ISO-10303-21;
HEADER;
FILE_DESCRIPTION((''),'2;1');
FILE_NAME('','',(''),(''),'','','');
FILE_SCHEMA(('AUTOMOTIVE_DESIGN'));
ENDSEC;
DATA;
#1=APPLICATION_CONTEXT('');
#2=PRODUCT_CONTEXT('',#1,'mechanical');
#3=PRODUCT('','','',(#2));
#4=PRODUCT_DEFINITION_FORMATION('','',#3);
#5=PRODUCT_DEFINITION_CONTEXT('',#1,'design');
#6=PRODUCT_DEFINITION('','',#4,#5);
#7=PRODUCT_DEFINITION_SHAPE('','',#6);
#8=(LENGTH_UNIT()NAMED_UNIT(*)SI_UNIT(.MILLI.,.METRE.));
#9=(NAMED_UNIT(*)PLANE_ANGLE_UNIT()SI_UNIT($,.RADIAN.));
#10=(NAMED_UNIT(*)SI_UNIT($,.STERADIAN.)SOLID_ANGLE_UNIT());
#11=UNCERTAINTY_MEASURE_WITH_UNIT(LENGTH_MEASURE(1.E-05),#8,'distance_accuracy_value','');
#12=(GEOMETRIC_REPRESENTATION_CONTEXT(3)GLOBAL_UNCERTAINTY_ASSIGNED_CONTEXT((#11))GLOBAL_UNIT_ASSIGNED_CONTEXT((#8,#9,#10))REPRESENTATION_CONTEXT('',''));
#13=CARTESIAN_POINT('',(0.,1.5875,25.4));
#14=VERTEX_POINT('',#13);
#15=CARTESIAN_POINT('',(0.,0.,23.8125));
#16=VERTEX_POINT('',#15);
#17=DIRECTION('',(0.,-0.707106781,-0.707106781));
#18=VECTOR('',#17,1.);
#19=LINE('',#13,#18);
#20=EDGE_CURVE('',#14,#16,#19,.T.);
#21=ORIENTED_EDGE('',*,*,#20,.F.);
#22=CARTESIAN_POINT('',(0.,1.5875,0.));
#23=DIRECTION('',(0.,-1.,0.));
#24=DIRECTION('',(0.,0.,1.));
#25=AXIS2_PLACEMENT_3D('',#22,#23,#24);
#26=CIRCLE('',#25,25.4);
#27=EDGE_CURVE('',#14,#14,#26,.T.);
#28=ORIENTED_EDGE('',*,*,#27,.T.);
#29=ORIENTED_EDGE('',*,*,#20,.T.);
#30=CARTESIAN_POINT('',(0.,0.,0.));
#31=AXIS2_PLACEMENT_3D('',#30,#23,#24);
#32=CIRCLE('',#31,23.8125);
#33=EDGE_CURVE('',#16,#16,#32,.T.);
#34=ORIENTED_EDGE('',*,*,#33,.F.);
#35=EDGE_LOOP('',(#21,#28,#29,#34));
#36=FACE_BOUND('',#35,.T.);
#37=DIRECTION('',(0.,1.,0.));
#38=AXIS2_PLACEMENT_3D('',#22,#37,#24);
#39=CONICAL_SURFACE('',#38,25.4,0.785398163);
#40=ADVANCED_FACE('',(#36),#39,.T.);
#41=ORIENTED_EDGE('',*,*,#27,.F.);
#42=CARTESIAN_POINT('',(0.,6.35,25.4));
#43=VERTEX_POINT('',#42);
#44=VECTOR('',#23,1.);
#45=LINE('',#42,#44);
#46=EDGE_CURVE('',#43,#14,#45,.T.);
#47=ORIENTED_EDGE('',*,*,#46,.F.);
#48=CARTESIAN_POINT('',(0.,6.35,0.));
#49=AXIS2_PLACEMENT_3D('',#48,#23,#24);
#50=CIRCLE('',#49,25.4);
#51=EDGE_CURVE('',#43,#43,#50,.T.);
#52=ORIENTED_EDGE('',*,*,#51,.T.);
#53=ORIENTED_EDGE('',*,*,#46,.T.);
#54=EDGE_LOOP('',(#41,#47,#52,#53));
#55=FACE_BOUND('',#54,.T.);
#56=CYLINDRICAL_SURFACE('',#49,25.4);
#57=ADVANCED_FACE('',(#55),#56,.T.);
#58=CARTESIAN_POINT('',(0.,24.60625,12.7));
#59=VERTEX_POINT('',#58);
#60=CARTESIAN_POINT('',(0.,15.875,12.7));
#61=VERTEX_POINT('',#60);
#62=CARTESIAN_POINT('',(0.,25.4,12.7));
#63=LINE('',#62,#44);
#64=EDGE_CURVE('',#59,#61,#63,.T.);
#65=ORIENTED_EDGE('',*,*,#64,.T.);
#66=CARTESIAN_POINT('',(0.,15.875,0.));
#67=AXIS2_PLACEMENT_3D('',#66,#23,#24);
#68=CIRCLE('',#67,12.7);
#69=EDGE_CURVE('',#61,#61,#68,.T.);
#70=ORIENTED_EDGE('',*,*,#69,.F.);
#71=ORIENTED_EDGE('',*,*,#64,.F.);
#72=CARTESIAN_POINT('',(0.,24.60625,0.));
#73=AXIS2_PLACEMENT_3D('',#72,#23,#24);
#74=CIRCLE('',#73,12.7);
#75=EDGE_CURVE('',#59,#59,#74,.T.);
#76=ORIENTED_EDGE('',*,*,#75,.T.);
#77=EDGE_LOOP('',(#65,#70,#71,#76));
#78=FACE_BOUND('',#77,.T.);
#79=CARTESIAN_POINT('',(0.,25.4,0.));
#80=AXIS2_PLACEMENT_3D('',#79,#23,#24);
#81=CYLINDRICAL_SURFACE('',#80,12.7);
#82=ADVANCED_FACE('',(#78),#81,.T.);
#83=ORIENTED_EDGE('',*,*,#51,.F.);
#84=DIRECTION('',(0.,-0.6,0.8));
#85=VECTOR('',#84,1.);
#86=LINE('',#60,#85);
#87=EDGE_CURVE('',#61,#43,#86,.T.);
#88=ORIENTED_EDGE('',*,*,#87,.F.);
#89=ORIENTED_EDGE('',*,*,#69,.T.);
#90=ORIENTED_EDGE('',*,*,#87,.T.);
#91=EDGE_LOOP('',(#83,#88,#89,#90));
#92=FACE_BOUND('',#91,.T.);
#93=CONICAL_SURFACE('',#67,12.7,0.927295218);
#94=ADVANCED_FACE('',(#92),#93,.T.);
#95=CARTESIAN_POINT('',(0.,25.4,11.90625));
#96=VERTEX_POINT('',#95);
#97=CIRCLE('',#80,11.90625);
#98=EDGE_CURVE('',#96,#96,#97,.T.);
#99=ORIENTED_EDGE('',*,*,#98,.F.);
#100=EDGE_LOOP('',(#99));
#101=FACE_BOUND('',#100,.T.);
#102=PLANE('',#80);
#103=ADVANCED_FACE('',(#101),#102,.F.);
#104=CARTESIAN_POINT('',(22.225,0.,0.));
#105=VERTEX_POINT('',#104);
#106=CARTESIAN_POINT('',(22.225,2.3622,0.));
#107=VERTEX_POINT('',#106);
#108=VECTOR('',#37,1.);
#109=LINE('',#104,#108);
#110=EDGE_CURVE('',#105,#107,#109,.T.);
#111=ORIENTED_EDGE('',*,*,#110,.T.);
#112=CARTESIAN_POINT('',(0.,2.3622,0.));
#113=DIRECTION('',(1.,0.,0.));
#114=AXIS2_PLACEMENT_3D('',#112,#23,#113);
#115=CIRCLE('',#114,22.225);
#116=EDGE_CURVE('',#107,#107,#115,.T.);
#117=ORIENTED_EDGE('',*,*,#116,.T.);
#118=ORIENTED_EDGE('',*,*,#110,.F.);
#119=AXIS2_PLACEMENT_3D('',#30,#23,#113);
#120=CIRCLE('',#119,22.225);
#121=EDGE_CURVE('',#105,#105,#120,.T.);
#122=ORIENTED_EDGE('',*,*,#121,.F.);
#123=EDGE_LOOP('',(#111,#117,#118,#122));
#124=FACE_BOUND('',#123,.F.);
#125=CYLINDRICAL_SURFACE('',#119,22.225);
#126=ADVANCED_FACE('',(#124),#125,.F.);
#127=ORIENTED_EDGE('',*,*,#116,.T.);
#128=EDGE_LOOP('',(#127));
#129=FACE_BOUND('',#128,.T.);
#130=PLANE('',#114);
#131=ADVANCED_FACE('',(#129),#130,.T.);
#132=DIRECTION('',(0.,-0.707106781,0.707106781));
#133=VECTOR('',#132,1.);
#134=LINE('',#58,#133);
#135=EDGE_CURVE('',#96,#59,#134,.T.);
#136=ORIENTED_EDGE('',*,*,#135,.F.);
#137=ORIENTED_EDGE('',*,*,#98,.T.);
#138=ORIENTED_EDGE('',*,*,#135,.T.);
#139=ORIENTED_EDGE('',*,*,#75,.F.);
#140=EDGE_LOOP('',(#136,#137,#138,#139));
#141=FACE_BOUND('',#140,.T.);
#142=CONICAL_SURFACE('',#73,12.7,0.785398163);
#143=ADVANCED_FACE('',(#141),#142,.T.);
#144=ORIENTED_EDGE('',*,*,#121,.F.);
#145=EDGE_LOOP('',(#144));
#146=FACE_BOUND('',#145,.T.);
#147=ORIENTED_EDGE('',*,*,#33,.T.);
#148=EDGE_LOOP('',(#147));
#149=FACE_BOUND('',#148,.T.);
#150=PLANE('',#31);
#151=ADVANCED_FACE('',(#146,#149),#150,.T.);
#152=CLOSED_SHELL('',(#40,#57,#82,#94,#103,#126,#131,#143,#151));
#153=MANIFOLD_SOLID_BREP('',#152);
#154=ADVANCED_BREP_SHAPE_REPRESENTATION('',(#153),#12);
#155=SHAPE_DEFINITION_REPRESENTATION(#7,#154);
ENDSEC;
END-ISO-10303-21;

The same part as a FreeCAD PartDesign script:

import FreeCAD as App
import Part
import Sketcher
Q = App.Units.Quantity


def edges_at(feature, points):
    """Names of the edges that pass closest to the given points."""
    edges = feature.Shape.Edges
    near = lambda p: min(range(len(edges)), key=lambda i: edges[i].distToShape(Part.Vertex(*p))[0])
    return sorted({f"Edge{near(p) + 1}" for p in points})


def add_polygon(sketch, points):
    """Adds a closed chain of lines whose ends are joined by coincident constraints."""
    first, n = sketch.GeometryCount, len(points)
    for a, b in zip(points, points[1:] + points[:1]):
        sketch.addGeometry(Part.LineSegment(App.Vector(*a, 0), App.Vector(*b, 0)), False)
    for i in range(n):
        sketch.addConstraint(Sketcher.Constraint("Coincident", first + i, 2, first + (i + 1) % n, 1))

doc = App.newDocument("Part")
body = doc.addObject("PartDesign::Body", "Body")

# Sketch on YZ plane
sketch1 = body.newObject("Sketcher::SketchObject", "Sketch")
sketch1.AttachmentSupport = (doc.getObject("YZ_Plane"), [""])
sketch1.MapMode = "FlatFace"
add_polygon(sketch1, [(0, 25), (0, 0), (25, 0), (25, 13), (16, 13), (6, 25)])  # lines 0-5
sketch1.addConstraint([
    Sketcher.Constraint("Vertical", 0),
    Sketcher.Constraint("Horizontal", 1),
    Sketcher.Constraint("Vertical", 2),
    Sketcher.Constraint("Horizontal", 3),
    Sketcher.Constraint("Horizontal", 5),
    Sketcher.Constraint("Coincident", 0, 2, -1, 1),
    Sketcher.Constraint("Equal", 1, 0),
    Sketcher.Constraint("DistanceX", 1, 1, 1, 2, Q("1 in")),
    Sketcher.Constraint("DistanceY", 2, 1, 2, 2, Q("0.5 in")),
    Sketcher.Constraint("DistanceX", 5, 2, 5, 1, Q("0.25 in")),
    Sketcher.Constraint("DistanceX", 3, 2, 3, 1, Q("0.375 in")),
])
revolution = body.newObject("PartDesign::Revolution", "Revolution")
revolution.Profile = sketch1
revolution.ReferenceAxis = (sketch1, ["H_Axis"])
revolution.Angle = 360
doc.recompute()

chamfer = body.newObject("PartDesign::Chamfer", "Chamfer")
chamfer.Base = (revolution, edges_at(revolution, [(0, 25.4, -12.7)]))
chamfer.Size = Q("0.03125 in")
doc.recompute()

chamfer2 = body.newObject("PartDesign::Chamfer", "Chamfer001")
chamfer2.Base = (chamfer, edges_at(chamfer, [(0, 0, -25.4)]))
chamfer2.Size = Q("0.0625 in")

# Sketch on XZ plane
sketch2 = body.newObject("Sketcher::SketchObject", "Sketch001")
sketch2.AttachmentSupport = (doc.getObject("XZ_Plane"), [""])
sketch2.MapMode = "FlatFace"
sketch2.addGeometry(Part.Circle(App.Vector(0, 0, 0), App.Vector(0, 0, 1), 22), False)
sketch2.addConstraint([
    Sketcher.Constraint("Coincident", 0, 3, -1, 1),
    Sketcher.Constraint("Diameter", 0, Q("1.75 in")),
])
pocket1 = body.newObject("PartDesign::Pocket", "Pocket")
pocket1.Profile = sketch2
pocket1.Length = Q("0.093 in")

doc.recompute()
